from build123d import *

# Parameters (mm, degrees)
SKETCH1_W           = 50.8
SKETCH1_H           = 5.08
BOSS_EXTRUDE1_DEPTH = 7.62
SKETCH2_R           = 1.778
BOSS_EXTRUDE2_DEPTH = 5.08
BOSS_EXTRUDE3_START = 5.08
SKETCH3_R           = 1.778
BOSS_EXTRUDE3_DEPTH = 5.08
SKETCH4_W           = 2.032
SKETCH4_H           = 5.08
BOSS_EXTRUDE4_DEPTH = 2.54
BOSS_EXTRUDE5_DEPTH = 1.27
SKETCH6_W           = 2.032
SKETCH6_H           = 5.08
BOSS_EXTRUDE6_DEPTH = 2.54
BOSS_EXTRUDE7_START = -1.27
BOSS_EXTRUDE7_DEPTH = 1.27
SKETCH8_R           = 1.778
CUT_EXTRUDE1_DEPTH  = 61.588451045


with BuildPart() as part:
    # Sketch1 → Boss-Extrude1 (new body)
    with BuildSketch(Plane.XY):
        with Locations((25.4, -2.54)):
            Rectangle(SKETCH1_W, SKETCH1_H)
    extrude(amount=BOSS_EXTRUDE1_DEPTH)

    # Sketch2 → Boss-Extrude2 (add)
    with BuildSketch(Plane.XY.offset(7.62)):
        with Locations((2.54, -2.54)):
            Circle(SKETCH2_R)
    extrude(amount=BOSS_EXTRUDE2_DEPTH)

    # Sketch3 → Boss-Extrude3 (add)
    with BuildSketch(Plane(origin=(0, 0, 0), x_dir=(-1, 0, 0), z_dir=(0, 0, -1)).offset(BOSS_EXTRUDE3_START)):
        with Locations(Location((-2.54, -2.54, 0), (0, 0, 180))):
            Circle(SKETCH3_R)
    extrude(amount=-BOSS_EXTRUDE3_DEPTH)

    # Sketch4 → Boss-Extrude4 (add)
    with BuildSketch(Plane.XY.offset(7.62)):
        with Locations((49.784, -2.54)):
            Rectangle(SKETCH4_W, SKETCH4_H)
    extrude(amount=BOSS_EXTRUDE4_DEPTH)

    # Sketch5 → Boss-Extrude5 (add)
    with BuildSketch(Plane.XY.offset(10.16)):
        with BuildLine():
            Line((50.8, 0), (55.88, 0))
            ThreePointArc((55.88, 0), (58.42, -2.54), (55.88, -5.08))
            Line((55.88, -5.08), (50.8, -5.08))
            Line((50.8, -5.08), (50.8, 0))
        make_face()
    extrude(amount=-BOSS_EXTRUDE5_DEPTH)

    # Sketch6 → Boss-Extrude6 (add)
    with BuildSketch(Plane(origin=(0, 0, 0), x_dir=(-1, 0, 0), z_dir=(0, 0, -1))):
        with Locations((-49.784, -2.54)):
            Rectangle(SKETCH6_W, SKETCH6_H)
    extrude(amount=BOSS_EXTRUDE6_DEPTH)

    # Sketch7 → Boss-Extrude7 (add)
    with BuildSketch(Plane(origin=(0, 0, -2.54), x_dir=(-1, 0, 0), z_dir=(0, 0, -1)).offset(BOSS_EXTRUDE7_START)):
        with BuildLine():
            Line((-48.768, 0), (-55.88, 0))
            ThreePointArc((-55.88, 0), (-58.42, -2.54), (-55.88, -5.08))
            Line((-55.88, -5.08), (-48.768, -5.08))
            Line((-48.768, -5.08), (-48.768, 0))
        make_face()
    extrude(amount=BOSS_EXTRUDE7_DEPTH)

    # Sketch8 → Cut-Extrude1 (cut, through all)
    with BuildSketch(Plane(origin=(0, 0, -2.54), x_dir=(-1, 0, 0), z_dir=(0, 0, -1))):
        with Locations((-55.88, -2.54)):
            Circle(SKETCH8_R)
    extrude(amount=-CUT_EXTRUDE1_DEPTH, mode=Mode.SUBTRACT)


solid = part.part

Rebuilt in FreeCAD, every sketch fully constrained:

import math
import FreeCAD as App
import Part
import Sketcher
Q = App.Units.Quantity

doc = App.newDocument("Part")
body = doc.addObject("PartDesign::Body", "Body")

sketch1 = body.newObject("Sketcher::SketchObject", "Sketch")
sketch1.AttachmentSupport = (doc.getObject("XY_Plane"), [""])
sketch1.MapMode = "FlatFace"
sketch1.addGeometry([
    Part.LineSegment(App.Vector(0, 0, 0), App.Vector(0, -5, 0)),
    Part.LineSegment(App.Vector(0, -5, 0), App.Vector(51, -5, 0)),
    Part.LineSegment(App.Vector(51, -5, 0), App.Vector(51, 0, 0)),
    Part.LineSegment(App.Vector(51, 0, 0), App.Vector(0, 0, 0)),
], False)
sketch1.addConstraint([
    Sketcher.Constraint("Coincident", 0, 2, 1, 1),
    Sketcher.Constraint("Coincident", 1, 2, 2, 1),
    Sketcher.Constraint("Coincident", 2, 2, 3, 1),
    Sketcher.Constraint("Coincident", 3, 2, 0, 1),
    Sketcher.Constraint("Vertical", 0),
    Sketcher.Constraint("Horizontal", 1),
    Sketcher.Constraint("Vertical", 2),
    Sketcher.Constraint("Horizontal", 3),
    Sketcher.Constraint("Coincident", 3, 2, -1, 1),
    Sketcher.Constraint("DistanceX", 1, 1, 1, 2, Q("2 in")),
    Sketcher.Constraint("DistanceY", 0, 2, 0, 1, Q("0.2 in")),
])
pad1 = body.newObject("PartDesign::Pad", "Pad")
pad1.Profile = sketch1
pad1.Length = Q("0.3 in")

sketch2 = body.newObject("Sketcher::SketchObject", "Sketch001")
sketch2.AttachmentSupport = (doc.getObject("XY_Plane"), [""])
sketch2.MapMode = "FlatFace"
sketch2.AttachmentOffset = App.Placement(App.Vector(0, 0, 0.3 * 25.4), App.Rotation())
sketch2.addGeometry(Part.Circle(App.Vector(2.5, -2.5, 0), App.Vector(0, 0, 1), 1.8), False)
sketch2.addConstraint([
    Sketcher.Constraint("Diameter", 0, Q("0.14 in")),
    Sketcher.Constraint("DistanceX", -1, 1, 0, 3, Q("0.1 in")),
    Sketcher.Constraint("DistanceY", 0, 3, -1, 1, Q("0.1 in")),
])
pad2 = body.newObject("PartDesign::Pad", "Pad001")
pad2.Profile = sketch2
pad2.Length = Q("0.2 in")

sketch3 = body.newObject("Sketcher::SketchObject", "Sketch002")
sketch3.AttachmentSupport = (doc.getObject("XY_Plane"), [""])
sketch3.MapMode = "FlatFace"
sketch3.AttachmentOffset = App.Placement(App.Vector(0, 0, -0.2 * 25.4), App.Rotation())
sketch3.addGeometry(Part.Circle(App.Vector(2.5, -2.5, 0), App.Vector(0, 0, 1), 1.8), False)
sketch3.addConstraint([
    Sketcher.Constraint("Diameter", 0, Q("0.14 in")),
    Sketcher.Constraint("DistanceX", -1, 1, 0, 3, Q("0.1 in")),
    Sketcher.Constraint("DistanceY", 0, 3, -1, 1, Q("0.1 in")),
])
pad3 = body.newObject("PartDesign::Pad", "Pad002")
pad3.Profile = sketch3
pad3.Length = Q("0.2 in")

sketch4 = body.newObject("Sketcher::SketchObject", "Sketch003")
sketch4.AttachmentSupport = (doc.getObject("XY_Plane"), [""])
sketch4.MapMode = "FlatFace"
sketch4.AttachmentOffset = App.Placement(App.Vector(0, 0, 0.3 * 25.4), App.Rotation())
sketch4.addGeometry([
    Part.LineSegment(App.Vector(48.8, 0, 0), App.Vector(48.8, -5.1, 0)),
    Part.LineSegment(App.Vector(48.8, -5.1, 0), App.Vector(50.8, -5.1, 0)),
    Part.LineSegment(App.Vector(50.8, -5.1, 0), App.Vector(50.8, 0, 0)),
    Part.LineSegment(App.Vector(50.8, 0, 0), App.Vector(48.8, 0, 0)),
], False)
sketch4.addConstraint([
    Sketcher.Constraint("Coincident", 0, 2, 1, 1),
    Sketcher.Constraint("Coincident", 1, 2, 2, 1),
    Sketcher.Constraint("Coincident", 2, 2, 3, 1),
    Sketcher.Constraint("Coincident", 3, 2, 0, 1),
    Sketcher.Constraint("Vertical", 0),
    Sketcher.Constraint("Horizontal", 1),
    Sketcher.Constraint("Vertical", 2),
    Sketcher.Constraint("Horizontal", 3),
    Sketcher.Constraint("PointOnObject", 2, 2, -1),
    Sketcher.Constraint("DistanceY", 0, 2, 0, 1, Q("0.2 in")),
    Sketcher.Constraint("DistanceX", -1, 1, 1, 2, Q("2 in")),
    Sketcher.Constraint("DistanceX", 1, 1, 1, 2, Q("0.08 in")),
])
pad4 = body.newObject("PartDesign::Pad", "Pad003")
pad4.Profile = sketch4
pad4.Length = Q("0.1 in")

sketch5 = body.newObject("Sketcher::SketchObject", "Sketch004")
sketch5.AttachmentSupport = (doc.getObject("XY_Plane"), [""])
sketch5.MapMode = "FlatFace"
sketch5.AttachmentOffset = App.Placement(App.Vector(0, 0, 0.4 * 25.4), App.Rotation())
sketch5.addGeometry([
    Part.LineSegment(App.Vector(55.9, 0, 0), App.Vector(50.8, 0, 0)),
    Part.LineSegment(App.Vector(50.8, 0, 0), App.Vector(50.8, -5.1, 0)),
    Part.LineSegment(App.Vector(50.8, -5.1, 0), App.Vector(55.9, -5.1, 0)),
    Part.ArcOfCircle(Part.Circle(App.Vector(55.9, -2.5, 0), App.Vector(0, 0, 1), 2.5), math.radians(-90), math.radians(90)),
], False)
sketch5.addConstraint([
    Sketcher.Constraint("Coincident", 0, 2, 1, 1),
    Sketcher.Constraint("Coincident", 1, 2, 2, 1),
    Sketcher.Constraint("Tangent", 2, 2, 3, 1),
    Sketcher.Constraint("Tangent", 3, 2, 0, 1),
    Sketcher.Constraint("Horizontal", 0),
    Sketcher.Constraint("Vertical", 1),
    Sketcher.Constraint("Horizontal", 2),
    Sketcher.Constraint("PointOnObject", 0, 2, -1),
    Sketcher.Constraint("Equal", 2, 1),
    Sketcher.Constraint("Radius", 3, Q("0.1 in")),
    Sketcher.Constraint("DistanceX", -1, 1, 0, 2, Q("2 in")),
])
pad5 = body.newObject("PartDesign::Pad", "Pad004")
pad5.Profile = sketch5
pad5.Length = Q("0.05 in")
pad5.Reversed = True

sketch6 = body.newObject("Sketcher::SketchObject", "Sketch005")
sketch6.AttachmentSupport = (doc.getObject("XY_Plane"), [""])
sketch6.MapMode = "FlatFace"
sketch6.addGeometry([
    Part.LineSegment(App.Vector(50.8, 0, 0), App.Vector(50.8, -5.1, 0)),
    Part.LineSegment(App.Vector(50.8, -5.1, 0), App.Vector(48.8, -5.1, 0)),
    Part.LineSegment(App.Vector(48.8, -5.1, 0), App.Vector(48.8, 0, 0)),
    Part.LineSegment(App.Vector(48.8, 0, 0), App.Vector(50.8, 0, 0)),
], False)
sketch6.addConstraint([
    Sketcher.Constraint("Coincident", 0, 2, 1, 1),
    Sketcher.Constraint("Coincident", 1, 2, 2, 1),
    Sketcher.Constraint("Coincident", 2, 2, 3, 1),
    Sketcher.Constraint("Coincident", 3, 2, 0, 1),
    Sketcher.Constraint("Vertical", 0),
    Sketcher.Constraint("Horizontal", 1),
    Sketcher.Constraint("Vertical", 2),
    Sketcher.Constraint("Horizontal", 3),
    Sketcher.Constraint("PointOnObject", 2, 2, -1),
    Sketcher.Constraint("DistanceY", 0, 2, 0, 1, Q("0.2 in")),
    Sketcher.Constraint("DistanceX", -1, 1, 0, 2, Q("2 in")),
    Sketcher.Constraint("DistanceX", 1, 2, 1, 1, Q("0.08 in")),
])
pad6 = body.newObject("PartDesign::Pad", "Pad005")
pad6.Profile = sketch6
pad6.Length = Q("0.1 in")
pad6.Reversed = True

sketch7 = body.newObject("Sketcher::SketchObject", "Sketch006")
sketch7.AttachmentSupport = (doc.getObject("XY_Plane"), [""])
sketch7.MapMode = "FlatFace"
sketch7.AttachmentOffset = App.Placement(App.Vector(0, 0, -0.05 * 25.4), App.Rotation())
sketch7.addGeometry([
    Part.LineSegment(App.Vector(48.8, 0, 0), App.Vector(55.9, 0, 0)),
    Part.ArcOfCircle(Part.Circle(App.Vector(55.9, -2.5, 0), App.Vector(0, 0, 1), 2.5), math.radians(-90), math.radians(90)),
    Part.LineSegment(App.Vector(55.9, -5.1, 0), App.Vector(48.8, -5.1, 0)),
    Part.LineSegment(App.Vector(48.8, -5.1, 0), App.Vector(48.8, 0, 0)),
], False)
sketch7.addConstraint([
    Sketcher.Constraint("Tangent", 0, 2, 1, 2),
    Sketcher.Constraint("Tangent", 1, 1, 2, 1),
    Sketcher.Constraint("Coincident", 2, 2, 3, 1),
    Sketcher.Constraint("Coincident", 3, 2, 0, 1),
    Sketcher.Constraint("Horizontal", 0),
    Sketcher.Constraint("Horizontal", 2),
    Sketcher.Constraint("Vertical", 3),
    Sketcher.Constraint("PointOnObject", 0, 2, -1),
    Sketcher.Constraint("Radius", 1, Q("0.1 in")),
    Sketcher.Constraint("DistanceX", 0, 1, 0, 2, Q("0.28 in")),
    Sketcher.Constraint("DistanceX", -1, 1, 1, 3, Q("2.2 in")),
])
pad7 = body.newObject("PartDesign::Pad", "Pad006")
pad7.Profile = sketch7
pad7.Length = Q("0.05 in")
pad7.Reversed = True

sketch8 = body.newObject("Sketcher::SketchObject", "Sketch007")
sketch8.AttachmentSupport = (doc.getObject("XY_Plane"), [""])
sketch8.MapMode = "FlatFace"
sketch8.AttachmentOffset = App.Placement(App.Vector(0, 0, -0.1 * 25.4), App.Rotation())
sketch8.addGeometry(Part.Circle(App.Vector(55.9, -2.5, 0), App.Vector(0, 0, 1), 1.8), False)
sketch8.addConstraint([
    Sketcher.Constraint("Diameter", 0, Q("0.14 in")),
    Sketcher.Constraint("DistanceX", -1, 1, 0, 3, Q("2.2 in")),
    Sketcher.Constraint("DistanceY", 0, 3, -1, 1, Q("0.1 in")),
])
pocket1 = body.newObject("PartDesign::Pocket", "Pocket")
pocket1.Profile = sketch8
pocket1.Type = "ThroughAll"
pocket1.Reversed = True

doc.recompute()
